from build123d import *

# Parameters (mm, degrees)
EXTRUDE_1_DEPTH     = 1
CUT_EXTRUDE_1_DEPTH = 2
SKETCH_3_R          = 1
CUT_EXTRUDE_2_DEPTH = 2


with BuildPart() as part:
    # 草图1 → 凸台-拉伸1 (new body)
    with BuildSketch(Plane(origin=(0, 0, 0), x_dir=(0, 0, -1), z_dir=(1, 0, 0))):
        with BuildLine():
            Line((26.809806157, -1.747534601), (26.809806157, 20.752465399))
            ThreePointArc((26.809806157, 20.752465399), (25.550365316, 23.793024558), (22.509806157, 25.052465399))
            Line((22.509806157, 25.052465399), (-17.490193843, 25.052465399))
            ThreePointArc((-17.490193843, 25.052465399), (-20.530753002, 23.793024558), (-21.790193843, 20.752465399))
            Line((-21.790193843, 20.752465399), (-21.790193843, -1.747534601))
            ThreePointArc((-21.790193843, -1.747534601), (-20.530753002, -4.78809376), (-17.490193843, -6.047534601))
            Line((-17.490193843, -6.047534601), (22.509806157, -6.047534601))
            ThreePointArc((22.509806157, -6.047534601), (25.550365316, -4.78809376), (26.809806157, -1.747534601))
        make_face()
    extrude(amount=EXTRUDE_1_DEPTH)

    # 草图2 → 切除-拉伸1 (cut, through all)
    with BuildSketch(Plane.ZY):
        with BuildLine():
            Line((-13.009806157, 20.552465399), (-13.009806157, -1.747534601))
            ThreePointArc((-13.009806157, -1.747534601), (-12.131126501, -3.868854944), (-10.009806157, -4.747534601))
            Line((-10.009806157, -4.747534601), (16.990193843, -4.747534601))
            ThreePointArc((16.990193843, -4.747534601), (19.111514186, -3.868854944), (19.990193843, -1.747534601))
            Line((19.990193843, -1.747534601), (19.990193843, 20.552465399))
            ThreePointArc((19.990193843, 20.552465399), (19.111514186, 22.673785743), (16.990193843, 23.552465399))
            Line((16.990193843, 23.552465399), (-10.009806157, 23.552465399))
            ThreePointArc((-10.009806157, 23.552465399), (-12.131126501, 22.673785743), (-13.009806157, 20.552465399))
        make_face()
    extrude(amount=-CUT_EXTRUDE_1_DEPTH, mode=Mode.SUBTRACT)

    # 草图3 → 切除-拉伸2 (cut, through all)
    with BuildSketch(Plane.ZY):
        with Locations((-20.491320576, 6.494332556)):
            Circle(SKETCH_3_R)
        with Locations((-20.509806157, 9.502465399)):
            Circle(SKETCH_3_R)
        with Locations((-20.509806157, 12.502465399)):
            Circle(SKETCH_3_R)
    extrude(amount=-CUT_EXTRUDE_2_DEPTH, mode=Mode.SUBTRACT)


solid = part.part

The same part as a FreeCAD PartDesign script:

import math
import FreeCAD as App
import Part
import Sketcher
from FreeCAD import Vector

doc = App.newDocument("Part")
body = doc.addObject("PartDesign::Body", "Body")

sketch1 = body.newObject("Sketcher::SketchObject", "Sketch")
sketch1.AttachmentSupport = (doc.getObject("YZ_Plane"), [""])
sketch1.MapMode = "FlatFace"
sketch1.addGeometry([
    Part.LineSegment(Vector(-1.7, -26.8, 0), Vector(20.8, -26.8, 0)),
    Part.ArcOfCircle(Part.Circle(Vector(20.8, -22.5, 0), Vector(0, 0, 1), 4.3), math.radians(-90), math.radians(0)),
    Part.LineSegment(Vector(25.1, -22.5, 0), Vector(25.1, 17.5, 0)),
    Part.ArcOfCircle(Part.Circle(Vector(20.8, 17.5, 0), Vector(0, 0, 1), 4.3), math.radians(0), math.radians(90)),
    Part.LineSegment(Vector(20.8, 21.8, 0), Vector(-1.7, 21.8, 0)),
    Part.ArcOfCircle(Part.Circle(Vector(-1.7, 17.5, 0), Vector(0, 0, 1), 4.3), math.radians(90), math.radians(180)),
    Part.LineSegment(Vector(-6, 17.5, 0), Vector(-6, -22.5, 0)),
    Part.ArcOfCircle(Part.Circle(Vector(-1.7, -22.5, 0), Vector(0, 0, 1), 4.3), math.radians(180), math.radians(270)),
], False)
sketch1.addConstraint([
    Sketcher.Constraint("Tangent", 0, 2, 1, 1),
    Sketcher.Constraint("Tangent", 1, 2, 2, 1),
    Sketcher.Constraint("Tangent", 2, 2, 3, 1),
    Sketcher.Constraint("Tangent", 3, 2, 4, 1),
    Sketcher.Constraint("Tangent", 4, 2, 5, 1),
    Sketcher.Constraint("Tangent", 5, 2, 6, 1),
    Sketcher.Constraint("Tangent", 6, 2, 7, 1),
    Sketcher.Constraint("Tangent", 7, 2, 0, 1),
    Sketcher.Constraint("Horizontal", 0),
    Sketcher.Constraint("Vertical", 2),
    Sketcher.Constraint("Horizontal", 4),
    Sketcher.Constraint("Vertical", 6),
    Sketcher.Constraint("Equal", 1, 3),
    Sketcher.Constraint("Equal", 3, 5),
    Sketcher.Constraint("Equal", 5, 7),
    Sketcher.Constraint("Radius", 1, 4.3),
    Sketcher.Constraint("DistanceY", 2, 1, 2, 2, 40.0),
    Sketcher.Constraint("DistanceX", 0, 1, 0, 2, 22.5),
    Sketcher.Constraint("DistanceX", -1, 1, 1, 3, 20.752465),
    Sketcher.Constraint("DistanceY", 1, 3, -1, 1, 22.509806),
])
pad1 = body.newObject("PartDesign::Pad", "Pad")
pad1.Profile = sketch1
pad1.Length = 1

sketch2 = body.newObject("Sketcher::SketchObject", "Sketch001")
sketch2.AttachmentSupport = (doc.getObject("YZ_Plane"), [""])
sketch2.MapMode = "FlatFace"
sketch2.addGeometry([
    Part.LineSegment(Vector(20.6, -13, 0), Vector(-1.7, -13, 0)),
    Part.ArcOfCircle(Part.Circle(Vector(-1.7, -10, 0), Vector(0, 0, 1), 3), math.radians(180), math.radians(270)),
    Part.LineSegment(Vector(-4.7, -10, 0), Vector(-4.7, 17, 0)),
    Part.ArcOfCircle(Part.Circle(Vector(-1.7, 17, 0), Vector(0, 0, 1), 3), math.radians(90), math.radians(180)),
    Part.LineSegment(Vector(-1.7, 20, 0), Vector(20.6, 20, 0)),
    Part.ArcOfCircle(Part.Circle(Vector(20.6, 17, 0), Vector(0, 0, 1), 3), math.radians(0), math.radians(90)),
    Part.LineSegment(Vector(23.6, 17, 0), Vector(23.6, -10, 0)),
    Part.ArcOfCircle(Part.Circle(Vector(20.6, -10, 0), Vector(0, 0, 1), 3), math.radians(-90), math.radians(0)),
], False)
sketch2.addConstraint([
    Sketcher.Constraint("Tangent", 0, 2, 1, 2),
    Sketcher.Constraint("Tangent", 1, 1, 2, 1),
    Sketcher.Constraint("Tangent", 2, 2, 3, 2),
    Sketcher.Constraint("Tangent", 3, 1, 4, 1),
    Sketcher.Constraint("Tangent", 4, 2, 5, 2),
    Sketcher.Constraint("Tangent", 5, 1, 6, 1),
    Sketcher.Constraint("Tangent", 6, 2, 7, 2),
    Sketcher.Constraint("Tangent", 7, 1, 0, 1),
    Sketcher.Constraint("Horizontal", 0),
    Sketcher.Constraint("Vertical", 2),
    Sketcher.Constraint("Horizontal", 4),
    Sketcher.Constraint("Vertical", 6),
    Sketcher.Constraint("Equal", 1, 3),
    Sketcher.Constraint("Equal", 3, 5),
    Sketcher.Constraint("Equal", 5, 7),
    Sketcher.Constraint("Radius", 1, 3.0),
    Sketcher.Constraint("DistanceY", 2, 1, 2, 2, 27.0),
    Sketcher.Constraint("DistanceX", 0, 2, 0, 1, 22.3),
    Sketcher.Constraint("DistanceX", 1, 3, -1, 1, 1.747535),
    Sketcher.Constraint("DistanceY", 1, 3, -1, 1, 10.009806),
])
pocket1 = body.newObject("PartDesign::Pocket", "Pocket")
pocket1.Profile = sketch2
pocket1.Type = "ThroughAll"
pocket1.Reversed = True

sketch3 = body.newObject("Sketcher::SketchObject", "Sketch002")
sketch3.AttachmentSupport = (doc.getObject("YZ_Plane"), [""])
sketch3.MapMode = "FlatFace"
sketch3.addGeometry([
    Part.Circle(Vector(6.5, -20.5, 0), Vector(0, 0, 1), 1),
    Part.Circle(Vector(9.5, -20.5, 0), Vector(0, 0, 1), 1),
    Part.Circle(Vector(12.5, -20.5, 0), Vector(0, 0, 1), 1),
], False)
sketch3.addConstraint([
    Sketcher.Constraint("Equal", 0, 1),
    Sketcher.Constraint("Equal", 1, 2),
    Sketcher.Constraint("Horizontal", 1, 3, 2, 3),
    Sketcher.Constraint("Diameter", 0, 2.0),
    Sketcher.Constraint("DistanceX", 1, 3, 2, 3, 3.0),
    Sketcher.Constraint("DistanceY", 0, 3, -1, 1, 20.491321),
    Sketcher.Constraint("DistanceX", -1, 1, 0, 3, 6.494333),
    Sketcher.Constraint("DistanceX", -1, 1, 1, 3, 9.502465),
    Sketcher.Constraint("DistanceY", 1, 3, -1, 1, 20.509806),
])
pocket2 = body.newObject("PartDesign::Pocket", "Pocket001")
pocket2.Profile = sketch3
pocket2.Type = "ThroughAll"
pocket2.Reversed = True

doc.recompute()
